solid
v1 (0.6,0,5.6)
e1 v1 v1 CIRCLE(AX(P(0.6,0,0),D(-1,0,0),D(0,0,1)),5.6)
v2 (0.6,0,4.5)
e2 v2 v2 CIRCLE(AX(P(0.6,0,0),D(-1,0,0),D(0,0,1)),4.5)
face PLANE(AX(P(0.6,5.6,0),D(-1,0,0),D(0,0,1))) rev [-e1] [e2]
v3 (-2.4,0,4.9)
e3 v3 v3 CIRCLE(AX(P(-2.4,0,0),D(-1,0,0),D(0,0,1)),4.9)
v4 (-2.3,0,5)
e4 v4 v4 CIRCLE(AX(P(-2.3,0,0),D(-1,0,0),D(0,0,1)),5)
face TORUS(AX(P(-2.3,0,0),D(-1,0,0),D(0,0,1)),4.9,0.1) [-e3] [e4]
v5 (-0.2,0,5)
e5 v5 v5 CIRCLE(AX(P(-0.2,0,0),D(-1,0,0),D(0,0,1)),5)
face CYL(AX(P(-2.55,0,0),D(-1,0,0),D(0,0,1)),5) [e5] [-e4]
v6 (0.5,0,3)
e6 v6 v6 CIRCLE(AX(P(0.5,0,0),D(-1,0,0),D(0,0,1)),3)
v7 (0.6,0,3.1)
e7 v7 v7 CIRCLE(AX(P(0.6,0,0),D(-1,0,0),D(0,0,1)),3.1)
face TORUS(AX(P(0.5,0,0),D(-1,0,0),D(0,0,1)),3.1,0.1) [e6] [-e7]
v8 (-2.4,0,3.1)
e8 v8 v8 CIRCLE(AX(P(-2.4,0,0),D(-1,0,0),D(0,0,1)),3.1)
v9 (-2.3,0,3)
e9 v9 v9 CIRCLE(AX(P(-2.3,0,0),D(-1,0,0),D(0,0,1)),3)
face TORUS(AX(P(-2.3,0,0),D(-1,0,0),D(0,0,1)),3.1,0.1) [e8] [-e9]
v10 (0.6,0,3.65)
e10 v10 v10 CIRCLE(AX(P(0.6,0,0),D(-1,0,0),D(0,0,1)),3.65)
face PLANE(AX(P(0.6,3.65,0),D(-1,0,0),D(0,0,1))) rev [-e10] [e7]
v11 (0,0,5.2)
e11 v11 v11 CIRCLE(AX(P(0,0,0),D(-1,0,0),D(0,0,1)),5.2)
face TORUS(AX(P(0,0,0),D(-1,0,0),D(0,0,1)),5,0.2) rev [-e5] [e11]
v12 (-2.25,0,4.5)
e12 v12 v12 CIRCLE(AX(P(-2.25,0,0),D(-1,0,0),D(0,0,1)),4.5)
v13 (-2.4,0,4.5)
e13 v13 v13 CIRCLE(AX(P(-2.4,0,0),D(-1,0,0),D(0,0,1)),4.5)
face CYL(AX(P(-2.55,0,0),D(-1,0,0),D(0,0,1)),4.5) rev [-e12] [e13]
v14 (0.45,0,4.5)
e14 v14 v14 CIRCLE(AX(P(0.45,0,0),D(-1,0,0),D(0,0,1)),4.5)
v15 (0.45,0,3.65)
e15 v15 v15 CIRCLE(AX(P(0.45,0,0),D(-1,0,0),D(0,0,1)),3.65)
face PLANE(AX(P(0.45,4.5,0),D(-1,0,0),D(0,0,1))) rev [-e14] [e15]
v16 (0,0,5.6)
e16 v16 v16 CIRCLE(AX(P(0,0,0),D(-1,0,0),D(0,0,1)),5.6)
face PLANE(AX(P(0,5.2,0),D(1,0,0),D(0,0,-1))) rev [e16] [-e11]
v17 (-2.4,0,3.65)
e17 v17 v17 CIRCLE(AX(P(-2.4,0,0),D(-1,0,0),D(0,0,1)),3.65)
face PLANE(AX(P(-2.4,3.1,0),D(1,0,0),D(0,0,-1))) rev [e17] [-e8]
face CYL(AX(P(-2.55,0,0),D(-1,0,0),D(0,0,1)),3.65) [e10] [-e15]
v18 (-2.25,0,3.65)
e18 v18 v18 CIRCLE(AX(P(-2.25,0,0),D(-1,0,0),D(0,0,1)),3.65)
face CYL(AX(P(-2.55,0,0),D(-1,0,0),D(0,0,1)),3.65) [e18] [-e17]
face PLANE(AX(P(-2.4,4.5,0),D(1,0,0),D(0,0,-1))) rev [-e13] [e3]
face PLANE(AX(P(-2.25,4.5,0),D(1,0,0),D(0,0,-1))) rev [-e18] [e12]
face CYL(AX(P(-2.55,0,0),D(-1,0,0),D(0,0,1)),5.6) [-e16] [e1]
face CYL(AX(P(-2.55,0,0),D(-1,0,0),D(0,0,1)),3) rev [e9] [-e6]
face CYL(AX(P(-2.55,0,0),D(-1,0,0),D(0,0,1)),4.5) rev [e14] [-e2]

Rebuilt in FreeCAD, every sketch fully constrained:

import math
import FreeCAD as App
import Part
import Sketcher
Q = App.Units.Quantity

doc = App.newDocument("Part")
body = doc.addObject("PartDesign::Body", "Body")

# Sketch on XY plane
sketch1 = body.newObject("Sketcher::SketchObject", "Sketch")
sketch1.AttachmentSupport = (doc.getObject("XY_Plane"), [""])
sketch1.MapMode = "FlatFace"
sketch1.addGeometry([
    Part.LineSegment(App.Vector(0, 5.6, 0), App.Vector(0, 5.2, 0)),  # 0
    Part.ArcOfCircle(Part.Circle(App.Vector(0, 5, 0), App.Vector(0, 0, 1), 0.2), math.radians(180), math.radians(450)),  # 1
    Part.LineSegment(App.Vector(-0.2, 5, 0), App.Vector(-2.3, 5, 0)),  # 2
    Part.ArcOfCircle(Part.Circle(App.Vector(-2.3, 4.9, 0), App.Vector(0, 0, 1), 0.1), math.radians(90), math.radians(180)),  # 3
    Part.LineSegment(App.Vector(-2.4, 4.9, 0), App.Vector(-2.4, 4.5, 0)),  # 4
    Part.LineSegment(App.Vector(-2.4, 4.5, 0), App.Vector(-2.25, 4.5, 0)),  # 5
    Part.LineSegment(App.Vector(-2.25, 4.5, 0), App.Vector(-2.25, 3.65, 0)),  # 6
    Part.LineSegment(App.Vector(-2.25, 3.65, 0), App.Vector(-2.4, 3.65, 0)),  # 7
    Part.LineSegment(App.Vector(-2.4, 3.65, 0), App.Vector(-2.4, 3.1, 0)),  # 8
    Part.ArcOfCircle(Part.Circle(App.Vector(-2.3, 3.1, 0), App.Vector(0, 0, 1), 0.1), math.radians(180), math.radians(270)),  # 9
    Part.LineSegment(App.Vector(-2.3, 3, 0), App.Vector(0.5, 3, 0)),  # 10
    Part.ArcOfCircle(Part.Circle(App.Vector(0.5, 3.1, 0), App.Vector(0, 0, 1), 0.1), math.radians(-90), math.radians(0)),  # 11
    Part.LineSegment(App.Vector(0.6, 3.1, 0), App.Vector(0.6, 3.65, 0)),  # 12
    Part.LineSegment(App.Vector(0.6, 3.65, 0), App.Vector(0.45, 3.65, 0)),  # 13
    Part.LineSegment(App.Vector(0.45, 3.65, 0), App.Vector(0.45, 4.5, 0)),  # 14
    Part.LineSegment(App.Vector(0.45, 4.5, 0), App.Vector(0.6, 4.5, 0)),  # 15
    Part.LineSegment(App.Vector(0.6, 4.5, 0), App.Vector(0.6, 5.6, 0)),  # 16
    Part.LineSegment(App.Vector(0.6, 5.6, 0), App.Vector(0, 5.6, 0)),  # 17
], False)
sketch1.addConstraint([
    Sketcher.Constraint("Coincident", 0, 2, 1, 2),
    Sketcher.Constraint("Coincident", 1, 1, 2, 1),
    Sketcher.Constraint("Tangent", 2, 2, 3, 1),
    Sketcher.Constraint("Tangent", 3, 2, 4, 1),
    Sketcher.Constraint("Coincident", 4, 2, 5, 1),
    Sketcher.Constraint("Coincident", 5, 2, 6, 1),
    Sketcher.Constraint("Coincident", 6, 2, 7, 1),
    Sketcher.Constraint("Coincident", 7, 2, 8, 1),
    Sketcher.Constraint("Tangent", 8, 2, 9, 1),
    Sketcher.Constraint("Tangent", 9, 2, 10, 1),
    Sketcher.Constraint("Tangent", 10, 2, 11, 1),
    Sketcher.Constraint("Tangent", 11, 2, 12, 1),
    Sketcher.Constraint("Coincident", 12, 2, 13, 1),
    Sketcher.Constraint("Coincident", 13, 2, 14, 1),
    Sketcher.Constraint("Coincident", 14, 2, 15, 1),
    Sketcher.Constraint("Coincident", 15, 2, 16, 1),
    Sketcher.Constraint("Coincident", 16, 2, 17, 1),
    Sketcher.Constraint("Coincident", 17, 2, 0, 1),
    Sketcher.Constraint("Vertical", 0),
    Sketcher.Constraint("Horizontal", 2),
    Sketcher.Constraint("Vertical", 4),
    Sketcher.Constraint("Horizontal", 5),
    Sketcher.Constraint("Vertical", 6),
    Sketcher.Constraint("Horizontal", 7),
    Sketcher.Constraint("Vertical", 8),
    Sketcher.Constraint("Horizontal", 10),
    Sketcher.Constraint("Vertical", 12),
    Sketcher.Constraint("Horizontal", 13),
    Sketcher.Constraint("Vertical", 14),
    Sketcher.Constraint("Horizontal", 15),
    Sketcher.Constraint("Vertical", 16),
    Sketcher.Constraint("Horizontal", 17),
    Sketcher.Constraint("Equal", 3, 9),
    Sketcher.Constraint("Equal", 9, 11),
    Sketcher.Constraint("PointOnObject", 1, 3, -2),
    Sketcher.Constraint("PointOnObject", 0, 2, -2),
    Sketcher.Constraint("Horizontal", 7, 2, 12, 2),
    Sketcher.Constraint("Horizontal", 5, 2, 14, 2),
    Sketcher.Constraint("Vertical", 3, 3, 9, 3),
    Sketcher.Constraint("Vertical", 12, 2, 15, 2),
    Sketcher.Constraint("Equal", 7, 13),
    Sketcher.Constraint("Equal", 0, 4),
    Sketcher.Constraint("Radius", 1, Q("0.2 mm")),
    Sketcher.Constraint("Radius", 3, Q("0.1 mm")),
    Sketcher.Constraint("DistanceX", 2, 2, 2, 1, Q("2.1 mm")),
    Sketcher.Constraint("DistanceX", 10, 1, 10, 2, Q("2.8 mm")),
    Sketcher.Constraint("DistanceY", 0, 2, 0, 1, Q("0.4 mm")),
    Sketcher.Constraint("DistanceY", 16, 1, 16, 2, Q("1.1 mm")),
    Sketcher.Constraint("DistanceY", -1, 1, 1, 3, Q("5 mm")),
    Sketcher.Constraint("DistanceY", -1, 1, 9, 2, Q("3 mm")),
    Sketcher.Constraint("DistanceX", 5, 1, 5, 2, Q("0.15 mm")),
    Sketcher.Constraint("DistanceY", 6, 2, 6, 1, Q("0.85 mm")),
])
revolution = body.newObject("PartDesign::Revolution", "Revolution")
revolution.Profile = sketch1
revolution.ReferenceAxis = (sketch1, ["H_Axis"])
revolution.Angle = 360

doc.recompute()
